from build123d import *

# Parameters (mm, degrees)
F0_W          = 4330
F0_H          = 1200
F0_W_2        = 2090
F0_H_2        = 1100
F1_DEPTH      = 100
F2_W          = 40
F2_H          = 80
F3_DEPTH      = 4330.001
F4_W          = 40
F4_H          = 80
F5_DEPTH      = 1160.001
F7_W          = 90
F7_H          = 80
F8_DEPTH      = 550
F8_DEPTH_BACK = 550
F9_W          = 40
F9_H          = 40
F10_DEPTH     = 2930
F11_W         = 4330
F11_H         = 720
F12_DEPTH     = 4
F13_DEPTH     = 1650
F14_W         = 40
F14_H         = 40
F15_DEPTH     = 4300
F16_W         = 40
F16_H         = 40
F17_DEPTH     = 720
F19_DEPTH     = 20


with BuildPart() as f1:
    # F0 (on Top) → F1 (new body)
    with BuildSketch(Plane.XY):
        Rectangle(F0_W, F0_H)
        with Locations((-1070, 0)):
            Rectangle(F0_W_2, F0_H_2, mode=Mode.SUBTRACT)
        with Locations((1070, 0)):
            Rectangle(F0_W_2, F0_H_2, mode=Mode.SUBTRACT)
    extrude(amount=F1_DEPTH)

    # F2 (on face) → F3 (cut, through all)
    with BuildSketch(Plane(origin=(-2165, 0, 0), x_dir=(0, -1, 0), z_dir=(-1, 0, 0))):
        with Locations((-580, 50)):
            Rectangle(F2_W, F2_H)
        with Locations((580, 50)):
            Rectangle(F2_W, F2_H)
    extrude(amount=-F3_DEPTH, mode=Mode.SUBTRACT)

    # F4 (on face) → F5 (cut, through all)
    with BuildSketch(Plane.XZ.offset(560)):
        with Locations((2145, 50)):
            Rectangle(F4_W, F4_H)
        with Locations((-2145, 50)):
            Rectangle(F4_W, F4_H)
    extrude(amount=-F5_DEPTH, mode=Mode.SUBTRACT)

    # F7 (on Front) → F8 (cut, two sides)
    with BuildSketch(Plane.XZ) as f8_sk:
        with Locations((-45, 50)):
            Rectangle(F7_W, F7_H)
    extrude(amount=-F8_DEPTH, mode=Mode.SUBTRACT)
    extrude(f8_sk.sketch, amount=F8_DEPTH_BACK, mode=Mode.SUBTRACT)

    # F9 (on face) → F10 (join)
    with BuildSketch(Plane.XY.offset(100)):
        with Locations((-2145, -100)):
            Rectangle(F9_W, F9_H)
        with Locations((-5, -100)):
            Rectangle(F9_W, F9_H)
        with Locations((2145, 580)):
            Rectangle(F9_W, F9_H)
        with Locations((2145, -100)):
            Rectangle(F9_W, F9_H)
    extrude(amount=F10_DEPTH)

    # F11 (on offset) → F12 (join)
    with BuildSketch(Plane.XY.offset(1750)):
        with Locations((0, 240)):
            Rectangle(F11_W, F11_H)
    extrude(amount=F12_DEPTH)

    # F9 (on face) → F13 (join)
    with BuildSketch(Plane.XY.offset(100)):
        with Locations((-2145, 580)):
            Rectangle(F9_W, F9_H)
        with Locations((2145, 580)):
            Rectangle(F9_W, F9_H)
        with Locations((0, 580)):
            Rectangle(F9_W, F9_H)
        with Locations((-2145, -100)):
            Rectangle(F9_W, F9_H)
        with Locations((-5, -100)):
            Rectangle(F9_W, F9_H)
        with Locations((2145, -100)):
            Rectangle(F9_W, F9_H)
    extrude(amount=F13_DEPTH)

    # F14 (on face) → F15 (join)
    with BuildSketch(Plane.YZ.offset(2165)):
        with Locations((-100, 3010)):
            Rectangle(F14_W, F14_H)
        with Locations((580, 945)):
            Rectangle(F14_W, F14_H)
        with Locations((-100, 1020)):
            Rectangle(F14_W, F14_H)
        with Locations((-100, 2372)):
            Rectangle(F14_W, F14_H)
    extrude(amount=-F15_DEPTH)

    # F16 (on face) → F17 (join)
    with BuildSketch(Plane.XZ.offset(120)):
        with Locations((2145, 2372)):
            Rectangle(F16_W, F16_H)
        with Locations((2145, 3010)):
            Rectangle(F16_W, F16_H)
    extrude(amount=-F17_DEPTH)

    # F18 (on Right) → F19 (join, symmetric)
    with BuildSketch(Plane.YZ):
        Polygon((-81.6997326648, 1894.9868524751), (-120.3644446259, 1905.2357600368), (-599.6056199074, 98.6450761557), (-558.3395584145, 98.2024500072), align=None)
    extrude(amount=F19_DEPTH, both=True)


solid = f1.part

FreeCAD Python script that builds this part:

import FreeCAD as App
import Part
import Sketcher

V = App.Vector

doc = App.newDocument("Part")
body = doc.addObject("PartDesign::Body", "Body")

sketch1 = body.newObject("Sketcher::SketchObject", "Sketch")
sketch1.AttachmentSupport = (doc.getObject("XY_Plane"), [""])
sketch1.MapMode = "FlatFace"
sketch1.addGeometry([
    Part.LineSegment(V(-2165, 600, 0), V(-2165, -600, 0)),
    Part.LineSegment(V(-2165, -600, 0), V(2165, -600, 0)),
    Part.LineSegment(V(2165, -600, 0), V(2165, 600, 0)),
    Part.LineSegment(V(2165, 600, 0), V(-2165, 600, 0)),
    Part.LineSegment(V(-25, -550, 0), V(-2115, -550, 0)),
    Part.LineSegment(V(-2115, -550, 0), V(-2115, 550, 0)),
    Part.LineSegment(V(-2115, 550, 0), V(-25, 550, 0)),
    Part.LineSegment(V(-25, 550, 0), V(-25, -550, 0)),
    Part.LineSegment(V(2115, -550, 0), V(25, -550, 0)),
    Part.LineSegment(V(25, -550, 0), V(25, 550, 0)),
    Part.LineSegment(V(25, 550, 0), V(2115, 550, 0)),
    Part.LineSegment(V(2115, 550, 0), V(2115, -550, 0)),
], False)
sketch1.addConstraint([
    Sketcher.Constraint("Coincident", 0, 2, 1, 1),
    Sketcher.Constraint("Coincident", 1, 2, 2, 1),
    Sketcher.Constraint("Coincident", 2, 2, 3, 1),
    Sketcher.Constraint("Coincident", 3, 2, 0, 1),
    Sketcher.Constraint("Coincident", 4, 2, 5, 1),
    Sketcher.Constraint("Coincident", 5, 2, 6, 1),
    Sketcher.Constraint("Coincident", 6, 2, 7, 1),
    Sketcher.Constraint("Coincident", 7, 2, 4, 1),
    Sketcher.Constraint("Coincident", 8, 2, 9, 1),
    Sketcher.Constraint("Coincident", 9, 2, 10, 1),
    Sketcher.Constraint("Coincident", 10, 2, 11, 1),
    Sketcher.Constraint("Coincident", 11, 2, 8, 1),
    Sketcher.Constraint("Vertical", 0),
    Sketcher.Constraint("Horizontal", 1),
    Sketcher.Constraint("Vertical", 2),
    Sketcher.Constraint("Horizontal", 3),
    Sketcher.Constraint("Horizontal", 4),
    Sketcher.Constraint("Vertical", 5),
    Sketcher.Constraint("Horizontal", 6),
    Sketcher.Constraint("Vertical", 7),
    Sketcher.Constraint("Horizontal", 8),
    Sketcher.Constraint("Vertical", 9),
    Sketcher.Constraint("Horizontal", 10),
    Sketcher.Constraint("Vertical", 11),
    Sketcher.Constraint("Symmetric", 0, 2, 2, 2, -1, 1),
    Sketcher.Constraint("Symmetric", 6, 2, 8, 2, -1, 1),
    Sketcher.Constraint("Symmetric", 4, 2, 10, 2, -1, 1),
    Sketcher.Constraint("Horizontal", 7, 2, 8, 2),
    Sketcher.Constraint("DistanceX", 1, 1, 1, 2, 4330.0),
    Sketcher.Constraint("DistanceX", 4, 2, 4, 1, 2090.0),
    Sketcher.Constraint("DistanceY", 0, 2, 0, 1, 1200.0),
    Sketcher.Constraint("DistanceY", 5, 1, 5, 2, 1100.0),
    Sketcher.Constraint("DistanceX", 4, 2, -1, 1, 2115.0),
])
pad1 = body.newObject("PartDesign::Pad", "Pad")
pad1.Profile = sketch1
pad1.Length = 100

sketch2 = body.newObject("Sketcher::SketchObject", "Sketch001")
sketch2.AttachmentSupport = (doc.getObject("YZ_Plane"), [""])
sketch2.MapMode = "FlatFace"
sketch2.AttachmentOffset = App.Placement(V(0, 0, -2165), App.Rotation())
sketch2.addGeometry([
    Part.LineSegment(V(600, 90, 0), V(600, 10, 0)),
    Part.LineSegment(V(600, 10, 0), V(560, 10, 0)),
    Part.LineSegment(V(560, 10, 0), V(560, 90, 0)),
    Part.LineSegment(V(560, 90, 0), V(600, 90, 0)),
    Part.LineSegment(V(-560, 90, 0), V(-560, 10, 0)),
    Part.LineSegment(V(-560, 10, 0), V(-600, 10, 0)),
    Part.LineSegment(V(-600, 10, 0), V(-600, 90, 0)),
    Part.LineSegment(V(-600, 90, 0), V(-560, 90, 0)),
], False)
sketch2.addConstraint([
    Sketcher.Constraint("Coincident", 0, 2, 1, 1),
    Sketcher.Constraint("Coincident", 1, 2, 2, 1),
    Sketcher.Constraint("Coincident", 2, 2, 3, 1),
    Sketcher.Constraint("Coincident", 3, 2, 0, 1),
    Sketcher.Constraint("Coincident", 4, 2, 5, 1),
    Sketcher.Constraint("Coincident", 5, 2, 6, 1),
    Sketcher.Constraint("Coincident", 6, 2, 7, 1),
    Sketcher.Constraint("Coincident", 7, 2, 4, 1),
    Sketcher.Constraint("Vertical", 0),
    Sketcher.Constraint("Horizontal", 1),
    Sketcher.Constraint("Vertical", 2),
    Sketcher.Constraint("Horizontal", 3),
    Sketcher.Constraint("Vertical", 4),
    Sketcher.Constraint("Horizontal", 5),
    Sketcher.Constraint("Vertical", 6),
    Sketcher.Constraint("Horizontal", 7),
    Sketcher.Constraint("Symmetric", 1, 2, 4, 2, -2),
    Sketcher.Constraint("Symmetric", 3, 2, 6, 2, -2),
    Sketcher.Constraint("DistanceX", 1, 2, 1, 1, 40.0),
    Sketcher.Constraint("DistanceY", 0, 2, 0, 1, 80.0),
    Sketcher.Constraint("DistanceX", -1, 1, 0, 2, 600.0),
    Sketcher.Constraint("DistanceY", -1, 1, 0, 2, 10.0),
])
pocket1 = body.newObject("PartDesign::Pocket", "Pocket")
pocket1.Profile = sketch2
pocket1.Type = "ThroughAll"
pocket1.Reversed = True

sketch3 = body.newObject("Sketcher::SketchObject", "Sketch002")
sketch3.AttachmentSupport = (doc.getObject("XZ_Plane"), [""])
sketch3.MapMode = "FlatFace"
sketch3.AttachmentOffset = App.Placement(V(0, 0, 560), App.Rotation())
sketch3.addGeometry([
    Part.LineSegment(V(2125, 90, 0), V(2125, 10, 0)),
    Part.LineSegment(V(2125, 10, 0), V(2165, 10, 0)),
    Part.LineSegment(V(2165, 10, 0), V(2165, 90, 0)),
    Part.LineSegment(V(2165, 90, 0), V(2125, 90, 0)),
    Part.LineSegment(V(-2165, 90, 0), V(-2165, 10, 0)),
    Part.LineSegment(V(-2165, 10, 0), V(-2125, 10, 0)),
    Part.LineSegment(V(-2125, 10, 0), V(-2125, 90, 0)),
    Part.LineSegment(V(-2125, 90, 0), V(-2165, 90, 0)),
], False)
sketch3.addConstraint([
    Sketcher.Constraint("Coincident", 0, 2, 1, 1),
    Sketcher.Constraint("Coincident", 1, 2, 2, 1),
    Sketcher.Constraint("Coincident", 2, 2, 3, 1),
    Sketcher.Constraint("Coincident", 3, 2, 0, 1),
    Sketcher.Constraint("Coincident", 4, 2, 5, 1),
    Sketcher.Constraint("Coincident", 5, 2, 6, 1),
    Sketcher.Constraint("Coincident", 6, 2, 7, 1),
    Sketcher.Constraint("Coincident", 7, 2, 4, 1),
    Sketcher.Constraint("Vertical", 0),
    Sketcher.Constraint("Horizontal", 1),
    Sketcher.Constraint("Vertical", 2),
    Sketcher.Constraint("Horizontal", 3),
    Sketcher.Constraint("Vertical", 4),
    Sketcher.Constraint("Horizontal", 5),
    Sketcher.Constraint("Vertical", 6),
    Sketcher.Constraint("Horizontal", 7),
    Sketcher.Constraint("Symmetric", 1, 2, 4, 2, -2),
    Sketcher.Constraint("Symmetric", 3, 2, 6, 2, -2),
    Sketcher.Constraint("DistanceX", 1, 1, 1, 2, 40.0),
    Sketcher.Constraint("DistanceY", 0, 2, 0, 1, 80.0),
    Sketcher.Constraint("DistanceX", -1, 1, 0, 2, 2125.0),
    Sketcher.Constraint("DistanceY", -1, 1, 0, 2, 10.0),
])
pocket2 = body.newObject("PartDesign::Pocket", "Pocket001")
pocket2.Profile = sketch3
pocket2.Type = "ThroughAll"

sketch4 = body.newObject("Sketcher::SketchObject", "Sketch003")
sketch4.AttachmentSupport = (doc.getObject("XZ_Plane"), [""])
sketch4.MapMode = "FlatFace"
sketch4.addGeometry([
    Part.LineSegment(V(-90, 90, 0), V(-90, 10, 0)),
    Part.LineSegment(V(-90, 10, 0), V(0, 10, 0)),
    Part.LineSegment(V(0, 10, 0), V(0, 90, 0)),
    Part.LineSegment(V(0, 90, 0), V(-90, 90, 0)),
], False)
sketch4.addConstraint([
    Sketcher.Constraint("Coincident", 0, 2, 1, 1),
    Sketcher.Constraint("Coincident", 1, 2, 2, 1),
    Sketcher.Constraint("Coincident", 2, 2, 3, 1),
    Sketcher.Constraint("Coincident", 3, 2, 0, 1),
    Sketcher.Constraint("Vertical", 0),
    Sketcher.Constraint("Horizontal", 1),
    Sketcher.Constraint("Vertical", 2),
    Sketcher.Constraint("Horizontal", 3),
    Sketcher.Constraint("PointOnObject", 1, 2, -2),
    Sketcher.Constraint("DistanceX", 1, 1, 1, 2, 90.0),
    Sketcher.Constraint("DistanceY", 0, 2, 0, 1, 80.0),
    Sketcher.Constraint("DistanceY", -1, 1, 0, 2, 10.0),
])
pocket3 = body.newObject("PartDesign::Pocket", "Pocket002")
pocket3.Profile = sketch4
pocket3.Type = "TwoLengths"
pocket3.Length = 550
pocket3.Length2 = 550

sketch5 = body.newObject("Sketcher::SketchObject", "Sketch004")
sketch5.AttachmentSupport = (doc.getObject("XY_Plane"), [""])
sketch5.MapMode = "FlatFace"
sketch5.AttachmentOffset = App.Placement(V(0, 0, 100), App.Rotation())
sketch5.addGeometry([
    Part.LineSegment(V(-2165, -80, 0), V(-2165, -120, 0)),
    Part.LineSegment(V(-2165, -120, 0), V(-2125, -120, 0)),
    Part.LineSegment(V(-2125, -120, 0), V(-2125, -80, 0)),
    Part.LineSegment(V(-2125, -80, 0), V(-2165, -80, 0)),
    Part.LineSegment(V(-25, -80, 0), V(-25, -120, 0)),
    Part.LineSegment(V(-25, -120, 0), V(15, -120, 0)),
    Part.LineSegment(V(15, -120, 0), V(15, -80, 0)),
    Part.LineSegment(V(15, -80, 0), V(-25, -80, 0)),
    Part.LineSegment(V(2125, 600, 0), V(2125, 560, 0)),
    Part.LineSegment(V(2125, 560, 0), V(2165, 560, 0)),
    Part.LineSegment(V(2165, 560, 0), V(2165, 600, 0)),
    Part.LineSegment(V(2165, 600, 0), V(2125, 600, 0)),
    Part.LineSegment(V(2125, -80, 0), V(2125, -120, 0)),
    Part.LineSegment(V(2125, -120, 0), V(2165, -120, 0)),
    Part.LineSegment(V(2165, -120, 0), V(2165, -80, 0)),
    Part.LineSegment(V(2165, -80, 0), V(2125, -80, 0)),
], False)
sketch5.addConstraint([
    Sketcher.Constraint("Coincident", 0, 2, 1, 1),
    Sketcher.Constraint("Coincident", 1, 2, 2, 1),
    Sketcher.Constraint("Coincident", 2, 2, 3, 1),
    Sketcher.Constraint("Coincident", 3, 2, 0, 1),
    Sketcher.Constraint("Coincident", 4, 2, 5, 1),
    Sketcher.Constraint("Coincident", 5, 2, 6, 1),
    Sketcher.Constraint("Coincident", 6, 2, 7, 1),
    Sketcher.Constraint("Coincident", 7, 2, 4, 1),
    Sketcher.Constraint("Coincident", 8, 2, 9, 1),
    Sketcher.Constraint("Coincident", 9, 2, 10, 1),
    Sketcher.Constraint("Coincident", 10, 2, 11, 1),
    Sketcher.Constraint("Coincident", 11, 2, 8, 1),
    Sketcher.Constraint("Coincident", 12, 2, 13, 1),
    Sketcher.Constraint("Coincident", 13, 2, 14, 1),
    Sketcher.Constraint("Coincident", 14, 2, 15, 1),
    Sketcher.Constraint("Coincident", 15, 2, 12, 1),
    Sketcher.Constraint("Vertical", 0),
    Sketcher.Constraint("Horizontal", 1),
    Sketcher.Constraint("Vertical", 2),
    Sketcher.Constraint("Horizontal", 3),
    Sketcher.Constraint("Vertical", 4),
    Sketcher.Constraint("Horizontal", 5),
    Sketcher.Constraint("Vertical", 6),
    Sketcher.Constraint("Horizontal", 7),
    Sketcher.Constraint("Vertical", 8),
    Sketcher.Constraint("Horizontal", 9),
    Sketcher.Constraint("Vertical", 10),
    Sketcher.Constraint("Horizontal", 11),
    Sketcher.Constraint("Vertical", 12),
    Sketcher.Constraint("Horizontal", 13),
    Sketcher.Constraint("Vertical", 14),
    Sketcher.Constraint("Horizontal", 15),
    Sketcher.Constraint("Symmetric", 1, 2, 12, 2, -2),
    Sketcher.Constraint("Symmetric", 3, 2, 14, 2, -2),
    Sketcher.Constraint("Horizontal", 1, 2, 4, 2),
    Sketcher.Constraint("Horizontal", 3, 2, 6, 2),
    Sketcher.Constraint("Vertical", 11, 2, 12, 2),
    Sketcher.Constraint("Vertical", 10, 2, 13, 2),
    Sketcher.Constraint("Equal", 3, 5),
    Sketcher.Constraint("Equal", 15, 0),
    Sketcher.Constraint("Equal", 6, 8),
    Sketcher.Constraint("DistanceX", 1, 1, 1, 2, 40.0),
    Sketcher.Constraint("DistanceX", 0, 2, -1, 1, 2165.0),
    Sketcher.Constraint("DistanceY", 0, 2, -1, 1, 120.0),
    Sketcher.Constraint("DistanceX", 4, 2, -1, 1, 25.0),
    Sketcher.Constraint("DistanceY", -1, 1, 8, 2, 560.0),
])
pad2 = body.newObject("PartDesign::Pad", "Pad001")
pad2.Profile = sketch5
pad2.Length = 2930

sketch6 = body.newObject("Sketcher::SketchObject", "Sketch005")
sketch6.AttachmentSupport = (doc.getObject("XY_Plane"), [""])
sketch6.MapMode = "FlatFace"
sketch6.AttachmentOffset = App.Placement(V(0, 0, 1750), App.Rotation())
sketch6.addGeometry([
    Part.LineSegment(V(-2165, 600, 0), V(-2165, -120, 0)),
    Part.LineSegment(V(-2165, -120, 0), V(2165, -120, 0)),
    Part.LineSegment(V(2165, -120, 0), V(2165, 600, 0)),
    Part.LineSegment(V(2165, 600, 0), V(-2165, 600, 0)),
], False)
sketch6.addConstraint([
    Sketcher.Constraint("Coincident", 0, 2, 1, 1),
    Sketcher.Constraint("Coincident", 1, 2, 2, 1),
    Sketcher.Constraint("Coincident", 2, 2, 3, 1),
    Sketcher.Constraint("Coincident", 3, 2, 0, 1),
    Sketcher.Constraint("Vertical", 0),
    Sketcher.Constraint("Horizontal", 1),
    Sketcher.Constraint("Vertical", 2),
    Sketcher.Constraint("Horizontal", 3),
    Sketcher.Constraint("DistanceX", 1, 1, 1, 2, 4330.0),
    Sketcher.Constraint("DistanceY", 0, 2, 0, 1, 720.0),
    Sketcher.Constraint("DistanceX", 0, 2, -1, 1, 2165.0),
    Sketcher.Constraint("DistanceY", 0, 2, -1, 1, 120.0),
])
pad3 = body.newObject("PartDesign::Pad", "Pad002")
pad3.Profile = sketch6
pad3.Length = 4

sketch7 = body.newObject("Sketcher::SketchObject", "Sketch006")
sketch7.AttachmentSupport = (doc.getObject("XY_Plane"), [""])
sketch7.MapMode = "FlatFace"
sketch7.AttachmentOffset = App.Placement(V(0, 0, 100), App.Rotation())
sketch7.addGeometry([
    Part.LineSegment(V(-2165, 600, 0), V(-2165, 560, 0)),
    Part.LineSegment(V(-2165, 560, 0), V(-2125, 560, 0)),
    Part.LineSegment(V(-2125, 560, 0), V(-2125, 600, 0)),
    Part.LineSegment(V(-2125, 600, 0), V(-2165, 600, 0)),
    Part.LineSegment(V(2125, 600, 0), V(2125, 560, 0)),
    Part.LineSegment(V(2125, 560, 0), V(2165, 560, 0)),
    Part.LineSegment(V(2165, 560, 0), V(2165, 600, 0)),
    Part.LineSegment(V(2165, 600, 0), V(2125, 600, 0)),
    Part.LineSegment(V(-20, 600, 0), V(-20, 560, 0)),
    Part.LineSegment(V(-20, 560, 0), V(20, 560, 0)),
    Part.LineSegment(V(20, 560, 0), V(20, 600, 0)),
    Part.LineSegment(V(20, 600, 0), V(-20, 600, 0)),
    Part.LineSegment(V(-2165, -80, 0), V(-2165, -120, 0)),
    Part.LineSegment(V(-2165, -120, 0), V(-2125, -120, 0)),
    Part.LineSegment(V(-2125, -120, 0), V(-2125, -80, 0)),
    Part.LineSegment(V(-2125, -80, 0), V(-2165, -80, 0)),
    Part.LineSegment(V(-25, -80, 0), V(-25, -120, 0)),
    Part.LineSegment(V(-25, -120, 0), V(15, -120, 0)),
    Part.LineSegment(V(15, -120, 0), V(15, -80, 0)),
    Part.LineSegment(V(15, -80, 0), V(-25, -80, 0)),
    Part.LineSegment(V(2125, -80, 0), V(2125, -120, 0)),
    Part.LineSegment(V(2125, -120, 0), V(2165, -120, 0)),
    Part.LineSegment(V(2165, -120, 0), V(2165, -80, 0)),
    Part.LineSegment(V(2165, -80, 0), V(2125, -80, 0)),
], False)
sketch7.addConstraint([
    Sketcher.Constraint("Coincident", 0, 2, 1, 1),
    Sketcher.Constraint("Coincident", 1, 2, 2, 1),
    Sketcher.Constraint("Coincident", 2, 2, 3, 1),
    Sketcher.Constraint("Coincident", 3, 2, 0, 1),
    Sketcher.Constraint("Coincident", 4, 2, 5, 1),
    Sketcher.Constraint("Coincident", 5, 2, 6, 1),
    Sketcher.Constraint("Coincident", 6, 2, 7, 1),
    Sketcher.Constraint("Coincident", 7, 2, 4, 1),
    Sketcher.Constraint("Coincident", 8, 2, 9, 1),
    Sketcher.Constraint("Coincident", 9, 2, 10, 1),
    Sketcher.Constraint("Coincident", 10, 2, 11, 1),
    Sketcher.Constraint("Coincident", 11, 2, 8, 1),
    Sketcher.Constraint("Coincident", 12, 2, 13, 1),
    Sketcher.Constraint("Coincident", 13, 2, 14, 1),
    Sketcher.Constraint("Coincident", 14, 2, 15, 1),
    Sketcher.Constraint("Coincident", 15, 2, 12, 1),
    Sketcher.Constraint("Coincident", 16, 2, 17, 1),
    Sketcher.Constraint("Coincident", 17, 2, 18, 1),
    Sketcher.Constraint("Coincident", 18, 2, 19, 1),
    Sketcher.Constraint("Coincident", 19, 2, 16, 1),
    Sketcher.Constraint("Coincident", 20, 2, 21, 1),
    Sketcher.Constraint("Coincident", 21, 2, 22, 1),
    Sketcher.Constraint("Coincident", 22, 2, 23, 1),
    Sketcher.Constraint("Coincident", 23, 2, 20, 1),
    Sketcher.Constraint("Vertical", 0),
    Sketcher.Constraint("Horizontal", 1),
    Sketcher.Constraint("Vertical", 2),
    Sketcher.Constraint("Horizontal", 3),
    Sketcher.Constraint("Vertical", 4),
    Sketcher.Constraint("Horizontal", 5),
    Sketcher.Constraint("Vertical", 6),
    Sketcher.Constraint("Horizontal", 7),
    Sketcher.Constraint("Vertical", 8),
    Sketcher.Constraint("Horizontal", 9),
    Sketcher.Constraint("Vertical", 10),
    Sketcher.Constraint("Horizontal", 11),
    Sketcher.Constraint("Vertical", 12),
    Sketcher.Constraint("Horizontal", 13),
    Sketcher.Constraint("Vertical", 14),
    Sketcher.Constraint("Horizontal", 15),
    Sketcher.Constraint("Vertical", 16),
    Sketcher.Constraint("Horizontal", 17),
    Sketcher.Constraint("Vertical", 18),
    Sketcher.Constraint("Horizontal", 19),
    Sketcher.Constraint("Vertical", 20),
    Sketcher.Constraint("Horizontal", 21),
    Sketcher.Constraint("Vertical", 22),
    Sketcher.Constraint("Horizontal", 23),
    Sketcher.Constraint("Symmetric", 1, 2, 4, 2, -2),
    Sketcher.Constraint("Symmetric", 3, 2, 6, 2, -2),
    Sketcher.Constraint("Symmetric", 13, 2, 20, 2, -2),
    Sketcher.Constraint("Symmetric", 15, 2, 22, 2, -2),
    Sketcher.Constraint("Horizontal", 5, 2, 8, 2),
    Sketcher.Constraint("Horizontal", 7, 2, 10, 2),
    Sketcher.Constraint("Horizontal", 13, 2, 16, 2),
    Sketcher.Constraint("Horizontal", 15, 2, 18, 2),
    Sketcher.Constraint("Vertical", 3, 2, 12, 2),
    Sketcher.Constraint("Vertical", 2, 2, 13, 2),
    Sketcher.Constraint("Equal", 7, 9),
    Sketcher.Constraint("Equal", 15, 17),
    Sketcher.Constraint("Equal", 23, 0),
    Sketcher.Constraint("Equal", 10, 12),
    Sketcher.Constraint("DistanceX", 1, 1, 1, 2, 40.0),
    Sketcher.Constraint("DistanceX", 0, 2, -1, 1, 2165.0),
    Sketcher.Constraint("DistanceY", -1, 1, 0, 2, 560.0),
    Sketcher.Constraint("DistanceX", 8, 2, -1, 1, 20.0),
    Sketcher.Constraint("DistanceY", 12, 2, -1, 1, 120.0),
    Sketcher.Constraint("DistanceX", 16, 2, -1, 1, 25.0),
])
pad4 = body.newObject("PartDesign::Pad", "Pad003")
pad4.Profile = sketch7
pad4.Length = 1650

sketch8 = body.newObject("Sketcher::SketchObject", "Sketch007")
sketch8.AttachmentSupport = (doc.getObject("YZ_Plane"), [""])
sketch8.MapMode = "FlatFace"
sketch8.AttachmentOffset = App.Placement(V(0, 0, 2165), App.Rotation())
sketch8.addGeometry([
    Part.LineSegment(V(-120, 3030, 0), V(-120, 2990, 0)),
    Part.LineSegment(V(-120, 2990, 0), V(-80, 2990, 0)),
    Part.LineSegment(V(-80, 2990, 0), V(-80, 3030, 0)),
    Part.LineSegment(V(-80, 3030, 0), V(-120, 3030, 0)),
    Part.LineSegment(V(560, 965, 0), V(560, 925, 0)),
    Part.LineSegment(V(560, 925, 0), V(600, 925, 0)),
    Part.LineSegment(V(600, 925, 0), V(600, 965, 0)),
    Part.LineSegment(V(600, 965, 0), V(560, 965, 0)),
    Part.LineSegment(V(-120, 1040, 0), V(-120, 1000, 0)),
    Part.LineSegment(V(-120, 1000, 0), V(-80, 1000, 0)),
    Part.LineSegment(V(-80, 1000, 0), V(-80, 1040, 0)),
    Part.LineSegment(V(-80, 1040, 0), V(-120, 1040, 0)),
    Part.LineSegment(V(-120, 2392, 0), V(-120, 2352, 0)),
    Part.LineSegment(V(-120, 2352, 0), V(-80, 2352, 0)),
    Part.LineSegment(V(-80, 2352, 0), V(-80, 2392, 0)),
    Part.LineSegment(V(-80, 2392, 0), V(-120, 2392, 0)),
], False)
sketch8.addConstraint([
    Sketcher.Constraint("Coincident", 0, 2, 1, 1),
    Sketcher.Constraint("Coincident", 1, 2, 2, 1),
    Sketcher.Constraint("Coincident", 2, 2, 3, 1),
    Sketcher.Constraint("Coincident", 3, 2, 0, 1),
    Sketcher.Constraint("Coincident", 4, 2, 5, 1),
    Sketcher.Constraint("Coincident", 5, 2, 6, 1),
    Sketcher.Constraint("Coincident", 6, 2, 7, 1),
    Sketcher.Constraint("Coincident", 7, 2, 4, 1),
    Sketcher.Constraint("Coincident", 8, 2, 9, 1),
    Sketcher.Constraint("Coincident", 9, 2, 10, 1),
    Sketcher.Constraint("Coincident", 10, 2, 11, 1),
    Sketcher.Constraint("Coincident", 11, 2, 8, 1),
    Sketcher.Constraint("Coincident", 12, 2, 13, 1),
    Sketcher.Constraint("Coincident", 13, 2, 14, 1),
    Sketcher.Constraint("Coincident", 14, 2, 15, 1),
    Sketcher.Constraint("Coincident", 15, 2, 12, 1),
    Sketcher.Constraint("Vertical", 0),
    Sketcher.Constraint("Horizontal", 1),
    Sketcher.Constraint("Vertical", 2),
    Sketcher.Constraint("Horizontal", 3),
    Sketcher.Constraint("Vertical", 4),
    Sketcher.Constraint("Horizontal", 5),
    Sketcher.Constraint("Vertical", 6),
    Sketcher.Constraint("Horizontal", 7),
    Sketcher.Constraint("Vertical", 8),
    Sketcher.Constraint("Horizontal", 9),
    Sketcher.Constraint("Vertical", 10),
    Sketcher.Constraint("Horizontal", 11),
    Sketcher.Constraint("Vertical", 12),
    Sketcher.Constraint("Horizontal", 13),
    Sketcher.Constraint("Vertical", 14),
    Sketcher.Constraint("Horizontal", 15),
    Sketcher.Constraint("Vertical", 3, 2, 8, 2),
    Sketcher.Constraint("Vertical", 2, 2, 9, 2),
    Sketcher.Constraint("Vertical", 11, 2, 12, 2),
    Sketcher.Constraint("Vertical", 10, 2, 13, 2),
    Sketcher.Constraint("Equal", 3, 5),
    Sketcher.Constraint("Equal", 15, 0),
    Sketcher.Constraint("Equal", 2, 4),
    Sketcher.Constraint("Equal", 6, 8),
    Sketcher.Constraint("Equal", 10, 12),
    Sketcher.Constraint("DistanceX", 1, 1, 1, 2, 40.0),
    Sketcher.Constraint("DistanceX", 0, 2, -1, 1, 120.0),
    Sketcher.Constraint("DistanceY", -1, 1, 0, 2, 2990.0),
    Sketcher.Constraint("DistanceX", -1, 1, 4, 2, 560.0),
    Sketcher.Constraint("DistanceY", -1, 1, 4, 2, 925.0),
    Sketcher.Constraint("DistanceY", -1, 1, 8, 2, 1000.0),
    Sketcher.Constraint("DistanceY", -1, 1, 12, 2, 2352.0),
])
pad5 = body.newObject("PartDesign::Pad", "Pad004")
pad5.Profile = sketch8
pad5.Length = 4300
pad5.Reversed = True

sketch9 = body.newObject("Sketcher::SketchObject", "Sketch008")
sketch9.AttachmentSupport = (doc.getObject("XZ_Plane"), [""])
sketch9.MapMode = "FlatFace"
sketch9.AttachmentOffset = App.Placement(V(0, 0, 120), App.Rotation())
sketch9.addGeometry([
    Part.LineSegment(V(2125, 2392, 0), V(2125, 2352, 0)),
    Part.LineSegment(V(2125, 2352, 0), V(2165, 2352, 0)),
    Part.LineSegment(V(2165, 2352, 0), V(2165, 2392, 0)),
    Part.LineSegment(V(2165, 2392, 0), V(2125, 2392, 0)),
    Part.LineSegment(V(2125, 3030, 0), V(2125, 2990, 0)),
    Part.LineSegment(V(2125, 2990, 0), V(2165, 2990, 0)),
    Part.LineSegment(V(2165, 2990, 0), V(2165, 3030, 0)),
    Part.LineSegment(V(2165, 3030, 0), V(2125, 3030, 0)),
], False)
sketch9.addConstraint([
    Sketcher.Constraint("Coincident", 0, 2, 1, 1),
    Sketcher.Constraint("Coincident", 1, 2, 2, 1),
    Sketcher.Constraint("Coincident", 2, 2, 3, 1),
    Sketcher.Constraint("Coincident", 3, 2, 0, 1),
    Sketcher.Constraint("Coincident", 4, 2, 5, 1),
    Sketcher.Constraint("Coincident", 5, 2, 6, 1),
    Sketcher.Constraint("Coincident", 6, 2, 7, 1),
    Sketcher.Constraint("Coincident", 7, 2, 4, 1),
    Sketcher.Constraint("Vertical", 0),
    Sketcher.Constraint("Horizontal", 1),
    Sketcher.Constraint("Vertical", 2),
    Sketcher.Constraint("Horizontal", 3),
    Sketcher.Constraint("Vertical", 4),
    Sketcher.Constraint("Horizontal", 5),
    Sketcher.Constraint("Vertical", 6),
    Sketcher.Constraint("Horizontal", 7),
    Sketcher.Constraint("Vertical", 3, 2, 4, 2),
    Sketcher.Constraint("Vertical", 2, 2, 5, 2),
    Sketcher.Constraint("Equal", 7, 0),
    Sketcher.Constraint("Equal", 2, 4),
    Sketcher.Constraint("DistanceX", 1, 1, 1, 2, 40.0),
    Sketcher.Constraint("DistanceX", -1, 1, 0, 2, 2125.0),
    Sketcher.Constraint("DistanceY", -1, 1, 0, 2, 2352.0),
    Sketcher.Constraint("DistanceY", -1, 1, 4, 2, 2990.0),
])
pad6 = body.newObject("PartDesign::Pad", "Pad005")
pad6.Profile = sketch9
pad6.Length = 720
pad6.Reversed = True

sketch10 = body.newObject("Sketcher::SketchObject", "Sketch009")
sketch10.AttachmentSupport = (doc.getObject("YZ_Plane"), [""])
sketch10.MapMode = "FlatFace"
sketch10.addGeometry([
    Part.LineSegment(V(-82, 1895, 0), V(-120, 1905, 0)),
    Part.LineSegment(V(-120, 1905, 0), V(-600, 99, 0)),
    Part.LineSegment(V(-600, 99, 0), V(-558, 98, 0)),
    Part.LineSegment(V(-558, 98, 0), V(-82, 1895, 0)),
], False)
sketch10.addConstraint([
    Sketcher.Constraint("Coincident", 0, 2, 1, 1),
    Sketcher.Constraint("Coincident", 1, 2, 2, 1),
    Sketcher.Constraint("Coincident", 2, 2, 3, 1),
    Sketcher.Constraint("Coincident", 3, 2, 0, 1),
    Sketcher.Constraint("Parallel", 1, 3),
    Sketcher.Constraint("Distance", 0, 40.000001),
    Sketcher.Constraint("DistanceY", -1, 1, 0, 2, 1905.23576),
    Sketcher.Constraint("DistanceX", 1, 2, -1, 1, 599.60562),
    Sketcher.Constraint("DistanceX", 2, 2, -1, 1, 558.339558),
    Sketcher.Constraint("DistanceY", -1, 1, 2, 2, 98.20245),
    Sketcher.Constraint("DistanceX", 0, 2, 3, 2, 38.664712),
    Sketcher.Constraint("Distance", 1, 1869.075173),
])
pad7 = body.newObject("PartDesign::Pad", "Pad006")
pad7.Profile = sketch10
pad7.Length = 40
pad7.Midplane = True

doc.recompute()
